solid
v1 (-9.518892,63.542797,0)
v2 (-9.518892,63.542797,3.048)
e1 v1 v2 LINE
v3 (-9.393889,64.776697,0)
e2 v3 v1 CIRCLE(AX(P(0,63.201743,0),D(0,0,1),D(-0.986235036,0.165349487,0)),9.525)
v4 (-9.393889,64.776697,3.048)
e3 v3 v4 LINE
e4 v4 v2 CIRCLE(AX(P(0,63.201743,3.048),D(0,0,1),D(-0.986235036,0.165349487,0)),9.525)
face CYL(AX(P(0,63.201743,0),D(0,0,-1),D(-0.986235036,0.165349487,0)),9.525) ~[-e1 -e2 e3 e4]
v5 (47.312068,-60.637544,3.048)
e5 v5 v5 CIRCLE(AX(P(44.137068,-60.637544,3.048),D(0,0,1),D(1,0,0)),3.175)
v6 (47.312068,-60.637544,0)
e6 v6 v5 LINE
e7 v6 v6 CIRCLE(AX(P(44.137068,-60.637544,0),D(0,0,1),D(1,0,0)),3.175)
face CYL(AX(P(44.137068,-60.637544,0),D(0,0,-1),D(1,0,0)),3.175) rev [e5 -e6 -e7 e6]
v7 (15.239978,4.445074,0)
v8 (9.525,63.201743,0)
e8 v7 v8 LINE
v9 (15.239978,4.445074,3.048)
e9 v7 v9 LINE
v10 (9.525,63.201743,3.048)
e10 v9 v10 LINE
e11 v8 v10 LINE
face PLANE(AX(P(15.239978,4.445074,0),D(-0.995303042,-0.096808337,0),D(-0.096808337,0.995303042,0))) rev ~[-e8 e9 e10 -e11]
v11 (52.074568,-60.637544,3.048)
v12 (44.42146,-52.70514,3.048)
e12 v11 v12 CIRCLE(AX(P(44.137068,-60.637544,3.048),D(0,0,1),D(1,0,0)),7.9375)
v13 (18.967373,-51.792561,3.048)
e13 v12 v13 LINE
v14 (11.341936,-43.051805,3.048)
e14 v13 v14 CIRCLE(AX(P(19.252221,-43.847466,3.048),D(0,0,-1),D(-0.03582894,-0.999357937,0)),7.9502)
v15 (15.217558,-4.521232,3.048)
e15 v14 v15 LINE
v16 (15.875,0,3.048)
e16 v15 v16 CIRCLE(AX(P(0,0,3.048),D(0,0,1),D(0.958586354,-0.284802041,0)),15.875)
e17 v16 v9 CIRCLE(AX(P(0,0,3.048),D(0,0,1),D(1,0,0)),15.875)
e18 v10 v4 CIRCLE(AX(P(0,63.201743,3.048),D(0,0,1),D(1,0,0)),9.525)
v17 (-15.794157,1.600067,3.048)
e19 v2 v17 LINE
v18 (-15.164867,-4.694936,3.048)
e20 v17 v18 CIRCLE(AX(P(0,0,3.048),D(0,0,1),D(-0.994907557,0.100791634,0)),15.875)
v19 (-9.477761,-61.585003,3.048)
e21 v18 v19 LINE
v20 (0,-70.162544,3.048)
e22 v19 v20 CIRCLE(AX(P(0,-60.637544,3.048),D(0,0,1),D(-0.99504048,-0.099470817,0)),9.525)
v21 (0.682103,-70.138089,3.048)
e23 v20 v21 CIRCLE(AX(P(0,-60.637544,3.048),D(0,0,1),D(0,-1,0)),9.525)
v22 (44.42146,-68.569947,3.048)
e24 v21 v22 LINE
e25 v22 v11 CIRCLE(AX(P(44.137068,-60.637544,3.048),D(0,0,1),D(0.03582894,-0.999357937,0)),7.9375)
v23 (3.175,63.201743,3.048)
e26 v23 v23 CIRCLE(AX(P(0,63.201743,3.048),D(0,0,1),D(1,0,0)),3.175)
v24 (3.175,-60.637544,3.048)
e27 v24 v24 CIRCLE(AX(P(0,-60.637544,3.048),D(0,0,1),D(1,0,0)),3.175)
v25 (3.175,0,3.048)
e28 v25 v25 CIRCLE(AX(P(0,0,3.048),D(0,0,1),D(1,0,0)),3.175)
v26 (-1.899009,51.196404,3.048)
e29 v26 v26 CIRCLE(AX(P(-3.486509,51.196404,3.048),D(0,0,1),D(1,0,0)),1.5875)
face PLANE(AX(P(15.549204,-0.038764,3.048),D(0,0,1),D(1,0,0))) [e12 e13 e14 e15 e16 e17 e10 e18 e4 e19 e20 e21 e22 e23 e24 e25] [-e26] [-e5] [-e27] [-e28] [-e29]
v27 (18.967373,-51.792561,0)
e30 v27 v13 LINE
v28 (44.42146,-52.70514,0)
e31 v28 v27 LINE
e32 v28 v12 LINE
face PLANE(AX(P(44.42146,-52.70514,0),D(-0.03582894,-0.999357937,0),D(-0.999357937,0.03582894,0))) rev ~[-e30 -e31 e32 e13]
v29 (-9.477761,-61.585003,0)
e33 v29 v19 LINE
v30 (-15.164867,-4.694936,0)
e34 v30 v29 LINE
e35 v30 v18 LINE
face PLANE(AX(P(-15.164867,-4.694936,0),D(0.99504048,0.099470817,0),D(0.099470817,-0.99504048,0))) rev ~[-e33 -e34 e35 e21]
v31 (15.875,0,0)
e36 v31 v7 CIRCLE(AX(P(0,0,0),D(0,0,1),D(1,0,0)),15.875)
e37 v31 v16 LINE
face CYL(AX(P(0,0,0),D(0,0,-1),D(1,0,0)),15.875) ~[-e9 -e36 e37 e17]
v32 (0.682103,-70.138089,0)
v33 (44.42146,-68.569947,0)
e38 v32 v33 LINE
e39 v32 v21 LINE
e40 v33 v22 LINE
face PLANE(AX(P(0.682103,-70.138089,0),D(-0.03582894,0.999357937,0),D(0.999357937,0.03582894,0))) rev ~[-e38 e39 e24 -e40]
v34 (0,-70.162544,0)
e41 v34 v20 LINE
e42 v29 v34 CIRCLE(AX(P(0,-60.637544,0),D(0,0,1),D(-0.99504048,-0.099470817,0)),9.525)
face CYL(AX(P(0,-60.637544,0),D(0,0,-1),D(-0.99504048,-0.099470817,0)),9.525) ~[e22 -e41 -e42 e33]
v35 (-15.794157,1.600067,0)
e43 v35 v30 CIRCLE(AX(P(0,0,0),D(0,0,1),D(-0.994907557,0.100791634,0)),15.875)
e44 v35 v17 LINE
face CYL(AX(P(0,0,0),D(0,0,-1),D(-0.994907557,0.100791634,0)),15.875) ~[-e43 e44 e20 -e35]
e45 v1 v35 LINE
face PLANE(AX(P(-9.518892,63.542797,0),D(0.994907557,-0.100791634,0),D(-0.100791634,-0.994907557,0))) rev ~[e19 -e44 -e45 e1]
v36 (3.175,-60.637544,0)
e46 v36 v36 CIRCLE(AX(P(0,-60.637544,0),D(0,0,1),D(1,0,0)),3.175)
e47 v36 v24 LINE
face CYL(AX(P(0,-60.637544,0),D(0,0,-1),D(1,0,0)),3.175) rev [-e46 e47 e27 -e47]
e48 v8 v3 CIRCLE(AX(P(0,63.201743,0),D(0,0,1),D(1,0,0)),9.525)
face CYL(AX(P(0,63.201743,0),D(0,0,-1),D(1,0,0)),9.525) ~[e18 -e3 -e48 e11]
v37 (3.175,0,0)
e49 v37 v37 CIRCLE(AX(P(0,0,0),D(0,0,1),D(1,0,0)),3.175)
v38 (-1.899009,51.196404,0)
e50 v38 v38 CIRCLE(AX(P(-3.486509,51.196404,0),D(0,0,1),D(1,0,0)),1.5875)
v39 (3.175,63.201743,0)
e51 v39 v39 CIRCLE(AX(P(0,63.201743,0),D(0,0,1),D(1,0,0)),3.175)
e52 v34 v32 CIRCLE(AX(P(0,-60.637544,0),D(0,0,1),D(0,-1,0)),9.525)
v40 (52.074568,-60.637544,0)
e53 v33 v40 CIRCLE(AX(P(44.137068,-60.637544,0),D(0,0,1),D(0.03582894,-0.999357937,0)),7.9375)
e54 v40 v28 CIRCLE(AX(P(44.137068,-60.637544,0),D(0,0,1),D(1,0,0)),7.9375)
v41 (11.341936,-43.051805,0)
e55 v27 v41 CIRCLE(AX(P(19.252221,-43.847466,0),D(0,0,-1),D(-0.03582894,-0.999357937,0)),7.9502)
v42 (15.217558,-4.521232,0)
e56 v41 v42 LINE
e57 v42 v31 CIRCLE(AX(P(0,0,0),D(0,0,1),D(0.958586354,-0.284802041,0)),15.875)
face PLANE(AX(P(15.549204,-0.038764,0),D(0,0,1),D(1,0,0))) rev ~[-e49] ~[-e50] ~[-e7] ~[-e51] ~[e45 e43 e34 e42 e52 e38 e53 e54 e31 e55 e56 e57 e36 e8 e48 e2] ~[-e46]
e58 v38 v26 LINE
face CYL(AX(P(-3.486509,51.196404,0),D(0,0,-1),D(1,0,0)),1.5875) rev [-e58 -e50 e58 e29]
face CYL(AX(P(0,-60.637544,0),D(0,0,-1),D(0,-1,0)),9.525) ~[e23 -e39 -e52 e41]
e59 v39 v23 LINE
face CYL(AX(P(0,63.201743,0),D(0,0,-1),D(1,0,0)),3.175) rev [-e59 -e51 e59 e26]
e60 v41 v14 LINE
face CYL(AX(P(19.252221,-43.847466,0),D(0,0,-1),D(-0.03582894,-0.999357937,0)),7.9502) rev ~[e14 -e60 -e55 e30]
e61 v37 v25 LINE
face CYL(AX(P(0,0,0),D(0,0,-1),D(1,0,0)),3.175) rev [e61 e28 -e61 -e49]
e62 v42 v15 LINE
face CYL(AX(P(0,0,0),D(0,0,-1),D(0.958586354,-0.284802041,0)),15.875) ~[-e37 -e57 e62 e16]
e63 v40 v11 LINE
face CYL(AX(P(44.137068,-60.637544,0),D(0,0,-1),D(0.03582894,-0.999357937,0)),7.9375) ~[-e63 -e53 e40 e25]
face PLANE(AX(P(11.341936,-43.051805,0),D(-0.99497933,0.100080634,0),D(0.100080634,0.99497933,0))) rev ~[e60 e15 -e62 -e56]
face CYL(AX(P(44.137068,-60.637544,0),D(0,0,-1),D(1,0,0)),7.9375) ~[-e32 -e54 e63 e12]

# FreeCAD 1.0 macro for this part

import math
import FreeCAD as App
import Part
import Sketcher

V = App.Vector
Q = App.Units.Quantity

doc = App.newDocument("Part")
body = doc.addObject("PartDesign::Body", "Body")

sketch1 = body.newObject("Sketcher::SketchObject", "Sketch")
sketch1.AttachmentSupport = (doc.getObject("XY_Plane"), [""])
sketch1.MapMode = "FlatFace"
sketch1.addGeometry([
    Part.ArcOfCircle(Part.Circle(V(0, 0, 0), V(0, 0, 1), 15.9), math.radians(-16.55), math.radians(0)),
    Part.ArcOfCircle(Part.Circle(V(0, 0, 0), V(0, 0, 1), 15.9), math.radians(0), math.radians(16.26)),
    Part.LineSegment(V(15.2, 4.4, 0), V(9.5, 63.2, 0)),
    Part.ArcOfCircle(Part.Circle(V(0, 63.2, 0), V(0, 0, 1), 9.5), math.radians(0), math.radians(170)),
    Part.ArcOfCircle(Part.Circle(V(0, 63.2, 0), V(0, 0, 1), 9.5), math.radians(170.48), math.radians(177.95)),
    Part.LineSegment(V(-9.5, 63.5, 0), V(-15.8, 1.6, 0)),
    Part.ArcOfCircle(Part.Circle(V(0, 0, 0), V(0, 0, 1), 15.9), math.radians(174), math.radians(197)),
    Part.LineSegment(V(-15.2, -4.7, 0), V(-9.5, -61.6, 0)),
    Part.ArcOfCircle(Part.Circle(V(0, -60.6, 0), V(0, 0, 1), 9.5), math.radians(-174), math.radians(-90)),
    Part.ArcOfCircle(Part.Circle(V(0, -60.6, 0), V(0, 0, 1), 9.5), math.radians(-90), math.radians(-85.89)),
    Part.LineSegment(V(0.7, -70.1, 0), V(44.4, -68.6, 0)),
    Part.ArcOfCircle(Part.Circle(V(44.1, -60.6, 0), V(0, 0, 1), 7.9), math.radians(-88), math.radians(0)),
    Part.ArcOfCircle(Part.Circle(V(44.1, -60.6, 0), V(0, 0, 1), 7.9), math.radians(0), math.radians(88)),
    Part.LineSegment(V(44.4, -52.7, 0), V(19, -51.8, 0)),
    Part.ArcOfCircle(Part.Circle(V(19.3, -43.8, 0), V(0, 0, 1), 8), math.radians(174), math.radians(268)),
    Part.LineSegment(V(11.3, -43.1, 0), V(15.2, -4.5, 0)),
    Part.Circle(V(0, -60.6, 0), V(0, 0, 1), 3.2),
    Part.Circle(V(0, 0, 0), V(0, 0, 1), 3.2),
    Part.Circle(V(44.1, -60.6, 0), V(0, 0, 1), 3.2),
    Part.Circle(V(-3.5, 51.2, 0), V(0, 0, 1), 1.6),
    Part.Circle(V(0, 63.2, 0), V(0, 0, 1), 3.2),
], False)
sketch1.addConstraint([
    Sketcher.Constraint("Tangent", 0, 2, 1, 1),
    Sketcher.Constraint("Coincident", 1, 2, 2, 1),
    Sketcher.Constraint("Coincident", 2, 2, 3, 1),
    Sketcher.Constraint("Tangent", 3, 2, 4, 1),
    Sketcher.Constraint("Coincident", 4, 2, 5, 1),
    Sketcher.Constraint("Tangent", 5, 2, 6, 1),
    Sketcher.Constraint("Coincident", 6, 2, 7, 1),
    Sketcher.Constraint("Tangent", 7, 2, 8, 1),
    Sketcher.Constraint("Tangent", 8, 2, 9, 1),
    Sketcher.Constraint("Coincident", 9, 2, 10, 1),
    Sketcher.Constraint("Tangent", 10, 2, 11, 1),
    Sketcher.Constraint("Tangent", 11, 2, 12, 1),
    Sketcher.Constraint("Tangent", 12, 2, 13, 1),
    Sketcher.Constraint("Tangent", 13, 2, 14, 2),
    Sketcher.Constraint("Tangent", 14, 1, 15, 1),
    Sketcher.Constraint("Coincident", 15, 2, 0, 1),
    Sketcher.Constraint("Coincident", 0, 3, -1, 1),
    Sketcher.Constraint("Coincident", 6, 3, -1, 1),
    Sketcher.Constraint("Coincident", 17, 3, -1, 1),
    Sketcher.Constraint("Coincident", 16, 3, 8, 3),
    Sketcher.Constraint("Coincident", 18, 3, 11, 3),
    Sketcher.Constraint("Coincident", 20, 3, 3, 3),
    Sketcher.Constraint("Equal", 0, 1),
    Sketcher.Constraint("Equal", 3, 4),
    Sketcher.Constraint("Equal", 1, 6),
    Sketcher.Constraint("Equal", 4, 8),
    Sketcher.Constraint("Equal", 8, 9),
    Sketcher.Constraint("Equal", 11, 12),
    Sketcher.Constraint("Equal", 16, 17),
    Sketcher.Constraint("Equal", 17, 18),
    Sketcher.Constraint("Equal", 18, 20),
    Sketcher.Constraint("PointOnObject", 3, 3, -2),
    Sketcher.Constraint("PointOnObject", 8, 3, -2),
    Sketcher.Constraint("PointOnObject", 0, 2, -1),
    Sketcher.Constraint("PointOnObject", 8, 2, -2),
    Sketcher.Constraint("Horizontal", 9, 3, 11, 3),
    Sketcher.Constraint("Horizontal", 20, 3, 2, 2),
    Sketcher.Constraint("Horizontal", 18, 3, 11, 2),
    Sketcher.Constraint("Vertical", 10, 2, 12, 2),
    Sketcher.Constraint("Diameter", 16, Q("0.25 in")),
    Sketcher.Constraint("Diameter", 19, Q("0.125 in")),
    Sketcher.Constraint("Radius", 0, Q("0.625 in")),
    Sketcher.Constraint("Radius", 3, Q("0.375 in")),
    Sketcher.Constraint("Radius", 11, Q("0.3125 in")),
    Sketcher.Constraint("Radius", 14, Q("0.313 in")),
    Sketcher.Constraint("DistanceY", 4, 2, 3, 2, 1.2339),
    Sketcher.Constraint("Distance", 2, 59.033949),
    Sketcher.Constraint("Distance", 7, 57.173621),
    Sketcher.Constraint("Distance", 10, 43.767459),
    Sketcher.Constraint("Distance", 13, 25.47044),
    Sketcher.Constraint("DistanceX", -1, 1, 11, 3, 44.137068),
    Sketcher.Constraint("DistanceX", 19, 3, -1, 1, 3.486509),
    Sketcher.Constraint("DistanceX", -1, 1, 1, 2, 15.239978),
    Sketcher.Constraint("DistanceX", 3, 2, -1, 1, 9.393889),
    Sketcher.Constraint("DistanceY", 9, 2, -1, 1, 70.138089),
    Sketcher.Constraint("DistanceX", -1, 1, 15, 2, 15.217558),
    Sketcher.Constraint("DistanceY", 19, 3, 4, 3, 12.005339),
])
pad1 = body.newObject("PartDesign::Pad", "Pad")
pad1.Profile = sketch1
pad1.Length = Q("0.12 in")

doc.recompute()
